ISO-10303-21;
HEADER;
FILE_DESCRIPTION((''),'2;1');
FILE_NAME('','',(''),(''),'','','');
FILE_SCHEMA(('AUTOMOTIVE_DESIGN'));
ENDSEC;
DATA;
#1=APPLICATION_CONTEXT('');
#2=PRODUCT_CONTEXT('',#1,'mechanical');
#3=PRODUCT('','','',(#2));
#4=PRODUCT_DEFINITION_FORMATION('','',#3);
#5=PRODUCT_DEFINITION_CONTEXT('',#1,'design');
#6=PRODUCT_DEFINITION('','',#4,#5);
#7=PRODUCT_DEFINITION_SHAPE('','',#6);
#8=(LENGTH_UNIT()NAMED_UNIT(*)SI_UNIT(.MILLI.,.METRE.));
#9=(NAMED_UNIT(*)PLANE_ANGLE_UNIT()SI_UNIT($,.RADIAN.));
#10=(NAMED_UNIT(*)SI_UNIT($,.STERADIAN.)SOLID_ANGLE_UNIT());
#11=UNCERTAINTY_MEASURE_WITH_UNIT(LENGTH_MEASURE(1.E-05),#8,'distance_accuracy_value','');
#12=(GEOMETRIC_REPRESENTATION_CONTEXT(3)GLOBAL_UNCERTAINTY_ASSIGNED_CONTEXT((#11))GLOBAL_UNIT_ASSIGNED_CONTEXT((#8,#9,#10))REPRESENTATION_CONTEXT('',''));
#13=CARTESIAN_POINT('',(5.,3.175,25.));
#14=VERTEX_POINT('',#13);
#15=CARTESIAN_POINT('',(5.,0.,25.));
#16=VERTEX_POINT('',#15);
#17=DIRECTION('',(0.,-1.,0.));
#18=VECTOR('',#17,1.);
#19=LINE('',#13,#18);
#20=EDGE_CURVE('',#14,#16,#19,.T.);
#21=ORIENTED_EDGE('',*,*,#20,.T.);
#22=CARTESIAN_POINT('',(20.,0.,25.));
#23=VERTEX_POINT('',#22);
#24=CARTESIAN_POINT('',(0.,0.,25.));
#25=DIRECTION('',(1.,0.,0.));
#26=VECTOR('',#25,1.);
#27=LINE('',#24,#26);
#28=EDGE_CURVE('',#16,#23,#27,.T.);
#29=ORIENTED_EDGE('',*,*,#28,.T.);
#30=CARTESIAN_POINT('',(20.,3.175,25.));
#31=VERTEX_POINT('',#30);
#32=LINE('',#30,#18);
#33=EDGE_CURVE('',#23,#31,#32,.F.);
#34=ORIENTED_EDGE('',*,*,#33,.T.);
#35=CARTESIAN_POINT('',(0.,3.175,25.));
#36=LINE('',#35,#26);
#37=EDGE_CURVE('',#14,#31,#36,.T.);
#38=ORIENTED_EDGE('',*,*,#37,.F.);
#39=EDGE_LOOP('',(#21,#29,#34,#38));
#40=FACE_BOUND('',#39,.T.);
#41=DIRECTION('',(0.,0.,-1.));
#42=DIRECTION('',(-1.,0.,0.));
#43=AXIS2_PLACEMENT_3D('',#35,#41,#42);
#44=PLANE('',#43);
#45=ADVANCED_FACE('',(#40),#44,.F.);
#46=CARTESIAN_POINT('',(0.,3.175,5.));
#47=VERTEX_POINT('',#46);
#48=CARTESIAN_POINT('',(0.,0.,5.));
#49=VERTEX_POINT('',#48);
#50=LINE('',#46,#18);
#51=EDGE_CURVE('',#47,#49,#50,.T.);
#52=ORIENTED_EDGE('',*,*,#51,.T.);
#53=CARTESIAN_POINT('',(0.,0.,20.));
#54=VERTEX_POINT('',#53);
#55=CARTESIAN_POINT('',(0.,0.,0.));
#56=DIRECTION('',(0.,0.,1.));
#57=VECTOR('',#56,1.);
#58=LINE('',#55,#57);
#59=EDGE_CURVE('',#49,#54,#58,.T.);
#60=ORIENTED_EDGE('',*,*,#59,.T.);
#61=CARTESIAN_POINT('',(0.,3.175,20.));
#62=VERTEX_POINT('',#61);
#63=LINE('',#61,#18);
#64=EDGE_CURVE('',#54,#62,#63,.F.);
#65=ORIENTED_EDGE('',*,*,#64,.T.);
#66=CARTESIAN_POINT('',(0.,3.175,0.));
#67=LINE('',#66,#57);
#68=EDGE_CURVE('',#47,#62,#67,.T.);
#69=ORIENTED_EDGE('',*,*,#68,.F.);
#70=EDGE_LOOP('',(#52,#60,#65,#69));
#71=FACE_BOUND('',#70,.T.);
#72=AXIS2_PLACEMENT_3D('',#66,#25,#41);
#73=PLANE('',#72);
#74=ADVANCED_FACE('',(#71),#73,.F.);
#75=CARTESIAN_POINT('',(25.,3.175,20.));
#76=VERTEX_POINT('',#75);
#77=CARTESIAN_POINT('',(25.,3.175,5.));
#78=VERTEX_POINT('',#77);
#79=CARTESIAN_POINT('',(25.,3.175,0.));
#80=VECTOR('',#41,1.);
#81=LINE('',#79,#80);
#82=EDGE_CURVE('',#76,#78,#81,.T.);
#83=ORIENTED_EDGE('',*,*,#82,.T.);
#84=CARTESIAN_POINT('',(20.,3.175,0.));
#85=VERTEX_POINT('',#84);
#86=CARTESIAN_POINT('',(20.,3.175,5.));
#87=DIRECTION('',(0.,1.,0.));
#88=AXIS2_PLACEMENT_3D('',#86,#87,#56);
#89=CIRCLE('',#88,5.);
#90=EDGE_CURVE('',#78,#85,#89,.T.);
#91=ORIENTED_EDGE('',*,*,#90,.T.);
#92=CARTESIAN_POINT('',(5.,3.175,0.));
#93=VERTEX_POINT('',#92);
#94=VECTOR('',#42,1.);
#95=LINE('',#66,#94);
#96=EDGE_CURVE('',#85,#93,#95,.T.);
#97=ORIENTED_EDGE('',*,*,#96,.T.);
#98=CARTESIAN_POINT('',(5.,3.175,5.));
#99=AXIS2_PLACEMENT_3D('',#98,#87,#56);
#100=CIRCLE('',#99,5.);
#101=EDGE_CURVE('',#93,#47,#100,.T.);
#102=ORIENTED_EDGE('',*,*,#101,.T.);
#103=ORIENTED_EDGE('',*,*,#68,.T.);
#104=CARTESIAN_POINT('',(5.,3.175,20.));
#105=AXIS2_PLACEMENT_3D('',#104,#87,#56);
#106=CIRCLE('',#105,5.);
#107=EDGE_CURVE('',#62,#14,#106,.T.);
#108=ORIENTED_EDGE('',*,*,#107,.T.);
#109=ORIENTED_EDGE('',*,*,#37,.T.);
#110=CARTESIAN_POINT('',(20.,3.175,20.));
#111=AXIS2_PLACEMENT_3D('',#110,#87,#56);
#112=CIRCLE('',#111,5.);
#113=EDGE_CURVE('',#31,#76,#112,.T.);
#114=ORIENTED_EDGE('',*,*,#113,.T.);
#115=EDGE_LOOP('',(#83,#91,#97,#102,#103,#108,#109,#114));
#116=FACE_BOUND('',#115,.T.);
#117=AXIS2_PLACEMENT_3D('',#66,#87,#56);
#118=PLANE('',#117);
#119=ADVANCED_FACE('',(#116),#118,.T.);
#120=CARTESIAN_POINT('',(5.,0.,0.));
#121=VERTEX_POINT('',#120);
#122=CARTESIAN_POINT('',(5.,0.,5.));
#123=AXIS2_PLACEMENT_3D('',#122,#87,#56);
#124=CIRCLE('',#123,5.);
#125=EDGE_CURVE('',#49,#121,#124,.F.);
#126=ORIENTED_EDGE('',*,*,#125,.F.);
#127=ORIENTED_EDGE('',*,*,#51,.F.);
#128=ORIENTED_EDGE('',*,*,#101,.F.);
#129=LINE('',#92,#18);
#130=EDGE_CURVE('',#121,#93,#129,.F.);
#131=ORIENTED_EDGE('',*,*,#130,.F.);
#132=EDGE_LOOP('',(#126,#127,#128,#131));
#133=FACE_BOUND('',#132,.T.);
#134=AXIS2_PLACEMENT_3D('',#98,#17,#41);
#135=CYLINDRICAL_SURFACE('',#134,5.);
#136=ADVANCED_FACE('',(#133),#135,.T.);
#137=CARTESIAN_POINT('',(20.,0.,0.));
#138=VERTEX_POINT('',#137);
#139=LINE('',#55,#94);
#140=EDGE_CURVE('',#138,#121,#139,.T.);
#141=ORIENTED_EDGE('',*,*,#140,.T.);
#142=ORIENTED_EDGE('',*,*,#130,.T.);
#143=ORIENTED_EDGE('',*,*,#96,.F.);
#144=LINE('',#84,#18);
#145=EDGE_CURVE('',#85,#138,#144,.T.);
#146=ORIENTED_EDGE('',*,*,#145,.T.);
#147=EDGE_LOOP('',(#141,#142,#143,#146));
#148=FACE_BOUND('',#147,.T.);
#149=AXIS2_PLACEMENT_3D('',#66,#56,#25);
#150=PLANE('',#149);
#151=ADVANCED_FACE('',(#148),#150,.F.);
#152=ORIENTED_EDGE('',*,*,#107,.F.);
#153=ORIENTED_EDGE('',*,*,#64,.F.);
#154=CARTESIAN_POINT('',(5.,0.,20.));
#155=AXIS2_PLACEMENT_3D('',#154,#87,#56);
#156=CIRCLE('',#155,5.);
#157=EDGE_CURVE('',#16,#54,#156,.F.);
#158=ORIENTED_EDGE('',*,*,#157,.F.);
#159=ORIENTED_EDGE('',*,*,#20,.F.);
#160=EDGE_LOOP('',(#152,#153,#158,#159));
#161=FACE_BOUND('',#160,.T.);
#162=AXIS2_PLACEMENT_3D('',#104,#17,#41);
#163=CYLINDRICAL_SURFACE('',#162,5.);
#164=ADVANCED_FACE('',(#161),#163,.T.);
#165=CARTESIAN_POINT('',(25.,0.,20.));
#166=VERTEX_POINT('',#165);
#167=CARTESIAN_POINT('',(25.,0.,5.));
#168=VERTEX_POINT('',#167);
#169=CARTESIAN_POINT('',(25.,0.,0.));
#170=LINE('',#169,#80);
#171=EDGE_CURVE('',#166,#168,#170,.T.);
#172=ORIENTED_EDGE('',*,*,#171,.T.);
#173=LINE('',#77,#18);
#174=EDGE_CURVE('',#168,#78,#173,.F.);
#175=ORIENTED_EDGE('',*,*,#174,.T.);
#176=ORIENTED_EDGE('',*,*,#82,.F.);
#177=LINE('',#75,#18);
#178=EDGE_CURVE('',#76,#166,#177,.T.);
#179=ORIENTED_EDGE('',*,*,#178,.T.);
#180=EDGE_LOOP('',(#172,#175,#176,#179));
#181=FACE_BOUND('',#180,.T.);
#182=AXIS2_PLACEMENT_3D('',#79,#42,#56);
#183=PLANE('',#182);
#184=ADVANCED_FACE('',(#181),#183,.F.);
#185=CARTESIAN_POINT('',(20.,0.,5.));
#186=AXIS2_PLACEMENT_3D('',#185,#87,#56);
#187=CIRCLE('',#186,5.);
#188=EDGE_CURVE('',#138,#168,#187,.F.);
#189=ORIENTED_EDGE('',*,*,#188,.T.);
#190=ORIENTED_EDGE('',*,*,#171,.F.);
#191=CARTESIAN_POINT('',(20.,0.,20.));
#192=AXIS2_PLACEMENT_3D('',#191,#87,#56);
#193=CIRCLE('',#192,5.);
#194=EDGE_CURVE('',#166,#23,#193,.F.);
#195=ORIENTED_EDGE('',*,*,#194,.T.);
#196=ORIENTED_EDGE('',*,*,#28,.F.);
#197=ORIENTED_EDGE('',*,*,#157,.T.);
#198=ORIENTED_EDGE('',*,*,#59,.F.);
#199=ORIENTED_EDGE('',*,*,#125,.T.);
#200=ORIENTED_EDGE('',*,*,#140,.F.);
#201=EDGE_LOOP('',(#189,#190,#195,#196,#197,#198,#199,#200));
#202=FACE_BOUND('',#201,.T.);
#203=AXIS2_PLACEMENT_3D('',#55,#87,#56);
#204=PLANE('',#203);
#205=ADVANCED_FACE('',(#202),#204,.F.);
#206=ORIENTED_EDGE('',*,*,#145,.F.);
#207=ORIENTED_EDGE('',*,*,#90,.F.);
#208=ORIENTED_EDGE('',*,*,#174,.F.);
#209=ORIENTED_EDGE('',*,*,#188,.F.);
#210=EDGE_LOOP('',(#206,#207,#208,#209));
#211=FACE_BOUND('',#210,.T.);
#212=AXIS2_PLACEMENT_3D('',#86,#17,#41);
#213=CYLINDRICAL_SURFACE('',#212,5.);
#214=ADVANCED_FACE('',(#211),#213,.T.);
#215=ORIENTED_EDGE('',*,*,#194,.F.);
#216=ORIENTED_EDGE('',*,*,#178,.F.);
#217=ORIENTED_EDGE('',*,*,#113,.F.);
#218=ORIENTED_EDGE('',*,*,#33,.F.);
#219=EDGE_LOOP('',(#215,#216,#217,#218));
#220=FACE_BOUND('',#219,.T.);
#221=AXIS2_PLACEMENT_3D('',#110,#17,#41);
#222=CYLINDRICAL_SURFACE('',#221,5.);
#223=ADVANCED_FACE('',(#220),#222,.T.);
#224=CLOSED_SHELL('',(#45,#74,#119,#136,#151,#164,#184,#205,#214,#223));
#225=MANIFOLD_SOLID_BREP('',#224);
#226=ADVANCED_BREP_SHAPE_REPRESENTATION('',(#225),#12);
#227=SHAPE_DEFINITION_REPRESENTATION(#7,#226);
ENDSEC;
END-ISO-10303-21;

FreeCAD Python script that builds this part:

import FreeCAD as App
import Part
import Sketcher
Q = App.Units.Quantity


def edges_at(feature, points):
    """Names of the edges that pass closest to the given points."""
    edges = feature.Shape.Edges
    near = lambda p: min(range(len(edges)), key=lambda i: edges[i].distToShape(Part.Vertex(*p))[0])
    return sorted({f"Edge{near(p) + 1}" for p in points})

doc = App.newDocument("Part")
params = doc.addObject("Spreadsheet::Sheet", "Params")
for row, (alias, value) in enumerate([
    ("sketch1_width", "25 mm"),
    ("pad1_length", "3.175 mm"),
    ("fillet_radius", "5 mm"),
], start=1):
    params.set(f"A{row}", alias)
    params.set(f"B{row}", "=" + value)
    params.setAlias(f"B{row}", alias)

body = doc.addObject("PartDesign::Body", "Body")

# Sketch on XZ plane
sketch1 = doc.addObject("Sketcher::SketchObject", "Sketch")
body.addObject(sketch1)
sketch1.AttachmentSupport = (doc.XZ_Plane, [""])
sketch1.MapMode = "FlatFace"
sketch1.addGeometry(Part.LineSegment(App.Vector(0, 0, 0), App.Vector(0, 25, 0)), False)
sketch1.addGeometry(Part.LineSegment(App.Vector(0, 25, 0), App.Vector(25, 25, 0)), False)
sketch1.addGeometry(Part.LineSegment(App.Vector(25, 25, 0), App.Vector(25, 0, 0)), False)
sketch1.addGeometry(Part.LineSegment(App.Vector(25, 0, 0), App.Vector(0, 0, 0)), False)
sketch1.addConstraint(Sketcher.Constraint("Coincident", 0, 2, 1, 1))
sketch1.addConstraint(Sketcher.Constraint("Coincident", 1, 2, 2, 1))
sketch1.addConstraint(Sketcher.Constraint("Coincident", 2, 2, 3, 1))
sketch1.addConstraint(Sketcher.Constraint("Coincident", 3, 2, 0, 1))
sketch1.addConstraint(Sketcher.Constraint("Vertical", 0))
sketch1.addConstraint(Sketcher.Constraint("Horizontal", 1))
sketch1.addConstraint(Sketcher.Constraint("Vertical", 2))
sketch1.addConstraint(Sketcher.Constraint("Horizontal", 3))
sketch1.addConstraint(Sketcher.Constraint("Coincident", 3, 2, -1, 1))
sketch1.addConstraint(Sketcher.Constraint("Equal", 3, 0))
sketch1.addConstraint(Sketcher.Constraint("DistanceX", 1, 1, 1, 2, Q("25 mm")))
sketch1.setExpression("Constraints[10]", "Params.sketch1_width")
pad1 = doc.addObject("PartDesign::Pad", "Pad")
body.addObject(pad1)
pad1.Profile = sketch1
pad1.setExpression("Length", "Params.pad1_length")
pad1.Reversed = True
doc.recompute()

fillet = doc.addObject("PartDesign::Fillet", "Fillet")
body.addObject(fillet)
fillet.Base = (pad1, edges_at(pad1, [
    (0, 1.587, 0),
    (25, 1.587, 0),
    (25, 1.587, 25),
    (0, 1.587, 25),
]))
fillet.setExpression("Radius", "Params.fillet_radius")

doc.recompute()
